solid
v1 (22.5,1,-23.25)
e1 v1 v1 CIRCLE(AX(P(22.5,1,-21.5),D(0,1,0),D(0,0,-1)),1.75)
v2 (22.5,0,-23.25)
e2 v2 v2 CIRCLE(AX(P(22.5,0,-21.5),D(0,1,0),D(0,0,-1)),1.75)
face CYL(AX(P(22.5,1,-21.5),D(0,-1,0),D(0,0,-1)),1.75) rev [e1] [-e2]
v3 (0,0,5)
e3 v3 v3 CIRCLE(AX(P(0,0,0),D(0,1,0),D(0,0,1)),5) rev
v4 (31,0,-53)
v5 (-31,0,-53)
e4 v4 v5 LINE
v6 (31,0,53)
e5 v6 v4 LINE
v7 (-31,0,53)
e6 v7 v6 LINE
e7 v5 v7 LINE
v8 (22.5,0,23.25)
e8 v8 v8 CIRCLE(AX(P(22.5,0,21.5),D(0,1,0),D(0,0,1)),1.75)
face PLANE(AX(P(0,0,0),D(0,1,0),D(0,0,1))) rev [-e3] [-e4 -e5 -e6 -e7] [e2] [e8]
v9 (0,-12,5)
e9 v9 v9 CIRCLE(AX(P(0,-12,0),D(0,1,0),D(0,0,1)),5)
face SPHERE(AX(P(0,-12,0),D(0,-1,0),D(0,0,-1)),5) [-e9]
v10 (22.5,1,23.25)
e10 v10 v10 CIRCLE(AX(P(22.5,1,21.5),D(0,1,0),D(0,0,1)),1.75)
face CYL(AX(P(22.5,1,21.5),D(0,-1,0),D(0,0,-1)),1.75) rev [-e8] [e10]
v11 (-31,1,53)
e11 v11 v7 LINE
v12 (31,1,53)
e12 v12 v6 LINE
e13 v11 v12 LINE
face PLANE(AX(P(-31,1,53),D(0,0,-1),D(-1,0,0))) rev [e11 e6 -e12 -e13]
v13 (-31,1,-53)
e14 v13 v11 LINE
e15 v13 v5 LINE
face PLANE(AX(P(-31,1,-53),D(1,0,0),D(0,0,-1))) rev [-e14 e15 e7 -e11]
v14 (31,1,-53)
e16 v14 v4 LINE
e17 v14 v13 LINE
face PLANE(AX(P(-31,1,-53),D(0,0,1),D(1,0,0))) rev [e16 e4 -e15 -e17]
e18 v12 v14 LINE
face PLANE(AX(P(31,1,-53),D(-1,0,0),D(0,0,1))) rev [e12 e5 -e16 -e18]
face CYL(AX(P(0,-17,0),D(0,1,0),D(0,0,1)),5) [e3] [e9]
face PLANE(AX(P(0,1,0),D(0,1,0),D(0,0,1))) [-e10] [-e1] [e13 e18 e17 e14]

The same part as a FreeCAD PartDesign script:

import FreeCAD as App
import Part
import Sketcher
from FreeCAD import Vector
Q = App.Units.Quantity


def edges_at(feature, points):
    """Names of the edges that pass closest to the given points."""
    edges = feature.Shape.Edges
    near = lambda p: min(range(len(edges)), key=lambda i: edges[i].distToShape(Part.Vertex(*p))[0])
    return sorted({f"Edge{near(p) + 1}" for p in points})

doc = App.newDocument("Part")
body = doc.addObject("PartDesign::Body", "Body")

# Sketch on XZ plane
sketch1 = body.newObject("Sketcher::SketchObject", "Sketch")
sketch1.AttachmentSupport = (doc.getObject("XZ_Plane"), [""])
sketch1.MapMode = "FlatFace"
sketch1.addGeometry([
    Part.LineSegment(Vector(-31, -53, 0), Vector(-31, 53, 0)),  # 0
    Part.LineSegment(Vector(-31, 53, 0), Vector(31, 53, 0)),  # 1
    Part.LineSegment(Vector(31, 53, 0), Vector(31, -53, 0)),  # 2
    Part.LineSegment(Vector(31, -53, 0), Vector(-31, -53, 0)),  # 3
    Part.Circle(Vector(22.5, 21.5, 0), Vector(0, 0, 1), 1.8),  # 4
    Part.Circle(Vector(22.5, -21.5, 0), Vector(0, 0, 1), 1.8),  # 5
], False)
sketch1.addConstraint([
    Sketcher.Constraint("Coincident", 0, 2, 1, 1),
    Sketcher.Constraint("Coincident", 1, 2, 2, 1),
    Sketcher.Constraint("Coincident", 2, 2, 3, 1),
    Sketcher.Constraint("Coincident", 3, 2, 0, 1),
    Sketcher.Constraint("Vertical", 0),
    Sketcher.Constraint("Horizontal", 1),
    Sketcher.Constraint("Vertical", 2),
    Sketcher.Constraint("Horizontal", 3),
    Sketcher.Constraint("Equal", 4, 5),
    Sketcher.Constraint("Symmetric", 0, 2, 2, 2, -1, 1),
    Sketcher.Constraint("Symmetric", 4, 3, 5, 3, -1),
    Sketcher.Constraint("Diameter", 4, Q("3.5 mm")),
    Sketcher.Constraint("DistanceX", 1, 1, 1, 2, Q("62 mm")),
    Sketcher.Constraint("DistanceY", 0, 1, 0, 2, Q("106 mm")),
    Sketcher.Constraint("DistanceY", 5, 3, 4, 3, Q("43 mm")),
    Sketcher.Constraint("DistanceX", -1, 1, 4, 3, Q("22.5 mm")),
])
pad1 = body.newObject("PartDesign::Pad", "Pad")
pad1.Profile = sketch1
pad1.Length = 1
pad1.Reversed = True

# Sketch on XZ plane
sketch2 = body.newObject("Sketcher::SketchObject", "Sketch001")
sketch2.AttachmentSupport = (doc.getObject("XZ_Plane"), [""])
sketch2.MapMode = "FlatFace"
sketch2.addGeometry(Part.Circle(Vector(0, 0, 0), Vector(0, 0, 1), 5), False)
sketch2.addConstraint([
    Sketcher.Constraint("Coincident", 0, 3, -1, 1),
    Sketcher.Constraint("Diameter", 0, Q("10 mm")),
])
pad2 = body.newObject("PartDesign::Pad", "Pad001")
pad2.Profile = sketch2
pad2.Length = 17
doc.recompute()

fillet = body.newObject("PartDesign::Fillet", "Fillet")
fillet.Base = (pad2, edges_at(pad2, [(-5, -17, 0)]))
fillet.Radius = 5

doc.recompute()
